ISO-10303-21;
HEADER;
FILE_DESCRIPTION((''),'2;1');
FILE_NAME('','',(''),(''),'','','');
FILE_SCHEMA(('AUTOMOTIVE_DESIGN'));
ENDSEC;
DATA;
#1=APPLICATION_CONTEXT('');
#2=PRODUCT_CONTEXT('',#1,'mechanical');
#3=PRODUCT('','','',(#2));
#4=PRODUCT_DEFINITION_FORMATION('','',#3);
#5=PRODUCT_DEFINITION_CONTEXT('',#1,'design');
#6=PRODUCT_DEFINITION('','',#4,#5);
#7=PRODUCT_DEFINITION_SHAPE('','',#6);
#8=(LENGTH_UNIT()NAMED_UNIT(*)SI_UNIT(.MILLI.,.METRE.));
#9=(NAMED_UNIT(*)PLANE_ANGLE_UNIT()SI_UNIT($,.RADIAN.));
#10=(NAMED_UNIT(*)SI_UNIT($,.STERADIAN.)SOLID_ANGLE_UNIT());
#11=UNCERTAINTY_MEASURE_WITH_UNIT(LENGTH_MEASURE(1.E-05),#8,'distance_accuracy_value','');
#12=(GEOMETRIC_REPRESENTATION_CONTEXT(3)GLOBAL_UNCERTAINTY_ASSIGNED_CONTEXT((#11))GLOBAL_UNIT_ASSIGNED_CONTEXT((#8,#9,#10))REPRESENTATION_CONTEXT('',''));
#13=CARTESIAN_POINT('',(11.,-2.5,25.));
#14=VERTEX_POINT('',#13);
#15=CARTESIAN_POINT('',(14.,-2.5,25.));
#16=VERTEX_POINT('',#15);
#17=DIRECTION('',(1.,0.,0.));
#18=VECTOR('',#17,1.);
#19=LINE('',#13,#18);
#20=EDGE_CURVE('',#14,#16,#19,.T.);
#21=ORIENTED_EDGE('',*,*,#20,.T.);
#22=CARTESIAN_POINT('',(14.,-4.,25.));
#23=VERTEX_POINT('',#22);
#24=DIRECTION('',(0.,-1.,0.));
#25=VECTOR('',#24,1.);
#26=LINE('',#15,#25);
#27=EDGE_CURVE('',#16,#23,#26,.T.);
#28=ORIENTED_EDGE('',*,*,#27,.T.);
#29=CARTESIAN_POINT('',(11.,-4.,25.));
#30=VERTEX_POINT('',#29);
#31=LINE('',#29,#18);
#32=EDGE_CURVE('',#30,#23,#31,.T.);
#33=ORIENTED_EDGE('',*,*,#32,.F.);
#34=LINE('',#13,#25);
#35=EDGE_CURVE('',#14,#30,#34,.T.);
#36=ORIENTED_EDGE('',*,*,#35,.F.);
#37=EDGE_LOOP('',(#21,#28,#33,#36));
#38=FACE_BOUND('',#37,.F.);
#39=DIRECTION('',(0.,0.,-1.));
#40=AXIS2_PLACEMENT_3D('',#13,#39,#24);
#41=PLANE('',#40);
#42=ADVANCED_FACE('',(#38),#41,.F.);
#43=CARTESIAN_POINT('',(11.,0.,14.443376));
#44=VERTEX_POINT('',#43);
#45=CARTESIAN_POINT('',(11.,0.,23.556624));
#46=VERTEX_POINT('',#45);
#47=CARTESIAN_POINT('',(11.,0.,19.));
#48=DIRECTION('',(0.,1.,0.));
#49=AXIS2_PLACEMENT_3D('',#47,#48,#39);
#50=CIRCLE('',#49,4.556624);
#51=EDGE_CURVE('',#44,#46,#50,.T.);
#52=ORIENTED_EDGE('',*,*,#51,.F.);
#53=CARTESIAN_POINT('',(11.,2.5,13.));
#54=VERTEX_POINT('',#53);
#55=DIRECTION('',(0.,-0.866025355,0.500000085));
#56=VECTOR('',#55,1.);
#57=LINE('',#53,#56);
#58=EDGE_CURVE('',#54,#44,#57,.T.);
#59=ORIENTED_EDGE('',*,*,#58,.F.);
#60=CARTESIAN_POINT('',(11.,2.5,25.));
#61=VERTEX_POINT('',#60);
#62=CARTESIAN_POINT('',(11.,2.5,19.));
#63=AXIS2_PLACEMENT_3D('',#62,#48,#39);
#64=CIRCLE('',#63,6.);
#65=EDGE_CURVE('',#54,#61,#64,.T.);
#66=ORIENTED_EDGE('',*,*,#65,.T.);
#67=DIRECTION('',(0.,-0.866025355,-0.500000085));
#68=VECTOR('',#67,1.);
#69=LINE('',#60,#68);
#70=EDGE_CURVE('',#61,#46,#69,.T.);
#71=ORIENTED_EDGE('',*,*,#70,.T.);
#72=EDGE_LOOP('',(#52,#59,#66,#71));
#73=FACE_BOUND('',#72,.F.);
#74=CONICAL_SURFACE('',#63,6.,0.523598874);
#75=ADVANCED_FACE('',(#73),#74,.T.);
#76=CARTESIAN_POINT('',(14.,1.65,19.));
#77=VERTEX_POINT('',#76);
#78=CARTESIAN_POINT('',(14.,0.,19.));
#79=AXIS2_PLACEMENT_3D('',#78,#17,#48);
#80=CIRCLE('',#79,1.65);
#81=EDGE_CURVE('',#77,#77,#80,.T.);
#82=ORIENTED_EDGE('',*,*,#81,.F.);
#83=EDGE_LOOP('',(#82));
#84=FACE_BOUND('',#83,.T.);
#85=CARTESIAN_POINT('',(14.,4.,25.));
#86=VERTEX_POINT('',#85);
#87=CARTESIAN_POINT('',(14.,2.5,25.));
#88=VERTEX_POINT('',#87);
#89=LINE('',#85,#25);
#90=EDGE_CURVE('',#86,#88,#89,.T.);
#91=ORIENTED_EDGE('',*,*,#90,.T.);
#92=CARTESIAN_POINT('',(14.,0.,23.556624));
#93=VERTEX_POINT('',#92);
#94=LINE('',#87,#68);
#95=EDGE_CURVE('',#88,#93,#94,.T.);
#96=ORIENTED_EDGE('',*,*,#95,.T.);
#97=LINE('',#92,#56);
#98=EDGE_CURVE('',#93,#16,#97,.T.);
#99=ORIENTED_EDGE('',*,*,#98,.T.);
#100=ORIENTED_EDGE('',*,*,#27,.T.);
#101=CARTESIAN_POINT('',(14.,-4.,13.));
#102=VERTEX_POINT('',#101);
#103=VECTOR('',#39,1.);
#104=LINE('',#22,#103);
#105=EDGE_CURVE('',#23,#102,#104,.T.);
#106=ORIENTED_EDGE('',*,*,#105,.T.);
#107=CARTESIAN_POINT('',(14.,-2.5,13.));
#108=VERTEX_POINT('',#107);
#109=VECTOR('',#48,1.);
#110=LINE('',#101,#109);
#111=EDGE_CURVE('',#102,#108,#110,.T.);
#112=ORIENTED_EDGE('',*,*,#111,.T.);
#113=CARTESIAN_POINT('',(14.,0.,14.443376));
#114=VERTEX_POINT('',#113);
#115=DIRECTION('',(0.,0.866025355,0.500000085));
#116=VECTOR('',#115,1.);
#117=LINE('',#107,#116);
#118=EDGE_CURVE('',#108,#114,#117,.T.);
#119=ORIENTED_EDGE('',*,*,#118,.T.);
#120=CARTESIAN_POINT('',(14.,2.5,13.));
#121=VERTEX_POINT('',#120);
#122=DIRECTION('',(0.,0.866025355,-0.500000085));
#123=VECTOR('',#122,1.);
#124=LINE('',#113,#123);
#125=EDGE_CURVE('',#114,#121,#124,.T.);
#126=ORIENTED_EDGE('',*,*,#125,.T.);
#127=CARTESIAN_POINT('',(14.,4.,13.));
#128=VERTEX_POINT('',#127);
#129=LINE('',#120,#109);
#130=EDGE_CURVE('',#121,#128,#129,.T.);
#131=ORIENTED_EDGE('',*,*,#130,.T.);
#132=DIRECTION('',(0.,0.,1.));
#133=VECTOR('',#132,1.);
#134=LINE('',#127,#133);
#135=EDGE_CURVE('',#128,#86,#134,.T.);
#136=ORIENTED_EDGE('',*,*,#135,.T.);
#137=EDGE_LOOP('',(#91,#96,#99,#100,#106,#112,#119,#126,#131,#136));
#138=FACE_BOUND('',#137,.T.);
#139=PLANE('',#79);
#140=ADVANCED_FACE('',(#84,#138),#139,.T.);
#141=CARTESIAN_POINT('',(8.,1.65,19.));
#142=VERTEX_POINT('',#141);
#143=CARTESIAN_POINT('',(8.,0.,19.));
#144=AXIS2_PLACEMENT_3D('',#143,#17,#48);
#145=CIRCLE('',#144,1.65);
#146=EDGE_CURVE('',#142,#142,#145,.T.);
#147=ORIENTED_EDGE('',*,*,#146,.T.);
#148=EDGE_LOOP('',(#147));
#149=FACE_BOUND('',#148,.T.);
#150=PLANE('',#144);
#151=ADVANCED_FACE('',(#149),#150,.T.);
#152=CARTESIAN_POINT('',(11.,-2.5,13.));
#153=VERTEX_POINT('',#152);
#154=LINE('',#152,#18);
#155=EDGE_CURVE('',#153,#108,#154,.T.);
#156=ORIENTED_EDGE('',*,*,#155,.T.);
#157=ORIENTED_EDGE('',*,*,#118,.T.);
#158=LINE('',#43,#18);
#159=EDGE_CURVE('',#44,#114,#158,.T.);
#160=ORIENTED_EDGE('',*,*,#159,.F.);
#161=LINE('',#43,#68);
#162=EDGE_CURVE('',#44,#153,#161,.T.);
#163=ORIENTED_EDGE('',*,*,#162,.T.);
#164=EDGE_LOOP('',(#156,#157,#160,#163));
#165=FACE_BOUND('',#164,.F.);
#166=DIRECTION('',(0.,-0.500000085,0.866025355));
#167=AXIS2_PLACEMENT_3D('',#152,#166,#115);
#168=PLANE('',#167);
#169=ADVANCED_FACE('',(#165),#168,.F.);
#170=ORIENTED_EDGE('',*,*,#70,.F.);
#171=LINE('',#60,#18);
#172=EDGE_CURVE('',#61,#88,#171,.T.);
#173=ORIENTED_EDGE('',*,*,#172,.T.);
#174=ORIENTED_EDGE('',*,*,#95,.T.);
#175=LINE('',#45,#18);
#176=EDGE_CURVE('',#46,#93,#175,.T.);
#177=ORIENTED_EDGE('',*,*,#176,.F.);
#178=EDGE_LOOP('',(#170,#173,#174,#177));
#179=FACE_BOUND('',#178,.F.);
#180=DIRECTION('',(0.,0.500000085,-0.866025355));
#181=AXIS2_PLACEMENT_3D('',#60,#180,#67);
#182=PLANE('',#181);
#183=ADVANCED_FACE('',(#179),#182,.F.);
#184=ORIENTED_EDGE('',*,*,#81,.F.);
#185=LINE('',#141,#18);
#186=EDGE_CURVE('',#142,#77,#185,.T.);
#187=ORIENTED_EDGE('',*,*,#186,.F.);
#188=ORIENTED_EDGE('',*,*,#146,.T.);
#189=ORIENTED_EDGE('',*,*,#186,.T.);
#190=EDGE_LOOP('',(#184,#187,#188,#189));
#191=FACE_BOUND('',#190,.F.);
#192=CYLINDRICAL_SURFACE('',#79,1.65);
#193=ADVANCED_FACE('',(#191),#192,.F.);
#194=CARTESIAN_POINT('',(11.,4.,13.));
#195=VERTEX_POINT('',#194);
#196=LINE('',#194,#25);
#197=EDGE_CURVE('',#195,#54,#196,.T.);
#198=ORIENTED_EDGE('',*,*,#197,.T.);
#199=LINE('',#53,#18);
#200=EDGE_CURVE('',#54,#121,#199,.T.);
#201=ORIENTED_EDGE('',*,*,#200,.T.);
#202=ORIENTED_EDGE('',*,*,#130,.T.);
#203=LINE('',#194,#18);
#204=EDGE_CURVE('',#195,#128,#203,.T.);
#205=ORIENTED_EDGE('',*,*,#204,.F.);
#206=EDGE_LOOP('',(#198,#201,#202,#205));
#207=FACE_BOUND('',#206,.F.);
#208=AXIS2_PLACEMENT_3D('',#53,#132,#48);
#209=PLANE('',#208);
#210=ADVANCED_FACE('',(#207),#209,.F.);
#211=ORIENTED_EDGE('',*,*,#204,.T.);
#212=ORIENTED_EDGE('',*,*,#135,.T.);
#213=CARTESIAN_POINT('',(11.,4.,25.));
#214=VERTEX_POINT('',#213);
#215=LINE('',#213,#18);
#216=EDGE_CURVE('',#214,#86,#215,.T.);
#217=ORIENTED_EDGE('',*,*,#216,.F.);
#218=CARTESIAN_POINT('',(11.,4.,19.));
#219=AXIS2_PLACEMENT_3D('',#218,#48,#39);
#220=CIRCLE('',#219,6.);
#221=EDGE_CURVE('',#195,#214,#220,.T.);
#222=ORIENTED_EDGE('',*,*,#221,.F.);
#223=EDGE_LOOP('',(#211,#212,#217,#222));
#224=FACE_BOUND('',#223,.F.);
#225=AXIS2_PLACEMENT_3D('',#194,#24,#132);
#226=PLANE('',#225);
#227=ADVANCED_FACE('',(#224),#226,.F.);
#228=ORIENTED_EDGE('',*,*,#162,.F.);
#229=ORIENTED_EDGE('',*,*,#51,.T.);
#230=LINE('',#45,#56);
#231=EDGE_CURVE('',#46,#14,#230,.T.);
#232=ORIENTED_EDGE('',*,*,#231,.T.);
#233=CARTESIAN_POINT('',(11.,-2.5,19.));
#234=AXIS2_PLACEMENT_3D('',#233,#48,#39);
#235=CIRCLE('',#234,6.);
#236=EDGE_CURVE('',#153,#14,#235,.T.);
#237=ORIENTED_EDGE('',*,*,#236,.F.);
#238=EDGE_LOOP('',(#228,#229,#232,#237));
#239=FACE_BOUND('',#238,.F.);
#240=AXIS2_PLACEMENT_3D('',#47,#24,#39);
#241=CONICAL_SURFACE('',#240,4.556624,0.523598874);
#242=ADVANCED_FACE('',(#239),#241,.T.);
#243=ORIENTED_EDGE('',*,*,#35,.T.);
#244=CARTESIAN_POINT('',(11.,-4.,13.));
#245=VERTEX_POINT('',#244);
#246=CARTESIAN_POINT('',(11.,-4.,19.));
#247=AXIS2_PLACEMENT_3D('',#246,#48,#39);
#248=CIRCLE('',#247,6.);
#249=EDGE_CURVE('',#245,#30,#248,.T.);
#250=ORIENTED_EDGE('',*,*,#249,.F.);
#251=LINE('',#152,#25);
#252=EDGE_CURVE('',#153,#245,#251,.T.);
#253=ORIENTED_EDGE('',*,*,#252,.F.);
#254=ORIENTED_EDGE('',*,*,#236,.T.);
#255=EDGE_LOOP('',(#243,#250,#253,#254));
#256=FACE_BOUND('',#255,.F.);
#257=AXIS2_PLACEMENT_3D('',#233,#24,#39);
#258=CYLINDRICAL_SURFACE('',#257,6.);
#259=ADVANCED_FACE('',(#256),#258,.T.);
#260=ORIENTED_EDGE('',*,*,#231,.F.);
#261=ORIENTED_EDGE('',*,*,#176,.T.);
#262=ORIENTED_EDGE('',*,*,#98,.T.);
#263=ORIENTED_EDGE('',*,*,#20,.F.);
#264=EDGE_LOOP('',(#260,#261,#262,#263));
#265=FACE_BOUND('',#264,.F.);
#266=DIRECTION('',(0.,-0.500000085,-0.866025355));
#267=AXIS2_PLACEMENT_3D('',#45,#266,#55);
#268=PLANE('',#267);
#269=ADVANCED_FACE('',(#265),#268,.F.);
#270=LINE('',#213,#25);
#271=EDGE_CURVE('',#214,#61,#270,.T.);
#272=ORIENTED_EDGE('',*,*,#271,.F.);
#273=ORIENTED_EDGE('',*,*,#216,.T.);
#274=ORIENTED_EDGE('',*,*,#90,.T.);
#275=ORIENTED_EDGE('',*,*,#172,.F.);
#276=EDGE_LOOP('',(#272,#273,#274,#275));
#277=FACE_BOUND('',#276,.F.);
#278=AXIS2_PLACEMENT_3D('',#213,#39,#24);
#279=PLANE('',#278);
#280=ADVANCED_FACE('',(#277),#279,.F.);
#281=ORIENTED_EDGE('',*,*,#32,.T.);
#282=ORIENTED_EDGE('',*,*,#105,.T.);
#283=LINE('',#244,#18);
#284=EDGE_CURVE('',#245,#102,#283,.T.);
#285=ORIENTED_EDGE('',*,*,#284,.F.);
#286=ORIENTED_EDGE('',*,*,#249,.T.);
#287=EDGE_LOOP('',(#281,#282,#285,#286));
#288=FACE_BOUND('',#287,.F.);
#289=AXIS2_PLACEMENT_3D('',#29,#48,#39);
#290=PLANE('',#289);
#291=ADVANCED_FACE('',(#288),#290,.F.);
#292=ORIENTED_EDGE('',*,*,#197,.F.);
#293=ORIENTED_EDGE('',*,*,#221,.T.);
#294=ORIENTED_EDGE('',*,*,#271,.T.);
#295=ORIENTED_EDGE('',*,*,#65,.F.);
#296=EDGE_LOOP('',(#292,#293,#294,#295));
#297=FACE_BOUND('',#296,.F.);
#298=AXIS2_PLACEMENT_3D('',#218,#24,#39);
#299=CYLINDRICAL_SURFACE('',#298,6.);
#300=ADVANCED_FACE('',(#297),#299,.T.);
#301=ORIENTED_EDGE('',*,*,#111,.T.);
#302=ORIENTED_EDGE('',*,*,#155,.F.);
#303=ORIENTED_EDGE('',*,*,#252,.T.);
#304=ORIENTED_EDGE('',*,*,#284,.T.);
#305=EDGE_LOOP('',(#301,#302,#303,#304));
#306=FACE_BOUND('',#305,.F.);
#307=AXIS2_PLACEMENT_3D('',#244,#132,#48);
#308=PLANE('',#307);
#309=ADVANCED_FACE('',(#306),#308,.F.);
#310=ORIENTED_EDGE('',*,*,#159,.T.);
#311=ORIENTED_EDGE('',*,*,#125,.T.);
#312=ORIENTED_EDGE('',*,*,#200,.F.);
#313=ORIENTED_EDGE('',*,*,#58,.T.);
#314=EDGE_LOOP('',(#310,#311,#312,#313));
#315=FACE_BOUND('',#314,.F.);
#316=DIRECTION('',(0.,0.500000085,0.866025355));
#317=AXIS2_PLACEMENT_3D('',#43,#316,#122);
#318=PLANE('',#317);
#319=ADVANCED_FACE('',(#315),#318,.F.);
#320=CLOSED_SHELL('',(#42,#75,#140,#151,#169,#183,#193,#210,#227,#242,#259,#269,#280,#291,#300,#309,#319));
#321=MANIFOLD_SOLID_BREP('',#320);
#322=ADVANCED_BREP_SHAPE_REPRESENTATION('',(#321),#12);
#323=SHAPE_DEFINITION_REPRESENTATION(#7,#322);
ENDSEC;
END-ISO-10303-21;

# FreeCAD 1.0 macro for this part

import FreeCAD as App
import Part
import Sketcher

V = App.Vector
Q = App.Units.Quantity

doc = App.newDocument("Part")
body = doc.addObject("PartDesign::Body", "Body")

# Sketch on YZ plane
sketch1 = body.newObject("Sketcher::SketchObject", "Sketch")
sketch1.AttachmentSupport = (doc.getObject("YZ_Plane"), [""])
sketch1.MapMode = "FlatFace"
sketch1.addGeometry([
    Part.LineSegment(V(-4, 0, 0), V(4, 0, 0)),  # 0
    Part.LineSegment(V(4, 0, 0), V(4, 6, 0)),  # 1
    Part.LineSegment(V(4, 6, 0), V(2.5, 6, 0)),  # 2
    Part.LineSegment(V(2.5, 6, 0), V(0, 4.6, 0)),  # 3
    Part.LineSegment(V(0, 4.6, 0), V(-2.5, 6, 0)),  # 4
    Part.LineSegment(V(-2.5, 6, 0), V(-4, 6, 0)),  # 5
    Part.LineSegment(V(-4, 6, 0), V(-4, 0, 0)),  # 6
], False)
sketch1.addConstraint([
    Sketcher.Constraint("Coincident", 0, 2, 1, 1),
    Sketcher.Constraint("Coincident", 1, 2, 2, 1),
    Sketcher.Constraint("Coincident", 2, 2, 3, 1),
    Sketcher.Constraint("Coincident", 3, 2, 4, 1),
    Sketcher.Constraint("Coincident", 4, 2, 5, 1),
    Sketcher.Constraint("Coincident", 5, 2, 6, 1),
    Sketcher.Constraint("Coincident", 6, 2, 0, 1),
    Sketcher.Constraint("Horizontal", 0),
    Sketcher.Constraint("Vertical", 1),
    Sketcher.Constraint("Horizontal", 2),
    Sketcher.Constraint("Horizontal", 5),
    Sketcher.Constraint("Vertical", 6),
    Sketcher.Constraint("Symmetric", 0, 2, 6, 2, -1, 1),
    Sketcher.Constraint("Symmetric", 2, 2, 4, 2, -2),
    Sketcher.Constraint("PointOnObject", 3, 2, -2),
    Sketcher.Constraint("DistanceX", 0, 1, 0, 2, Q("8 mm")),
    Sketcher.Constraint("DistanceY", 1, 1, 1, 2, Q("6 mm")),
    Sketcher.Constraint("Angle", 3, Q("-149.999994 deg")),
    Sketcher.Constraint("DistanceX", 2, 2, 2, 1, Q("1.5 mm")),
])
revolution = body.newObject("PartDesign::Revolution", "Revolution")
revolution.Profile = sketch1
revolution.ReferenceAxis = (sketch1, ["H_Axis"])
revolution.Angle = 180

# Sketch on YZ plane
sketch2 = body.newObject("Sketcher::SketchObject", "Sketch001")
sketch2.AttachmentSupport = (doc.getObject("YZ_Plane"), [""])
sketch2.MapMode = "FlatFace"
sketch2.AttachmentOffset = App.Placement(V(0, 0, -5), App.Rotation())
sketch2.addGeometry(Part.Circle(V(0, 0, 0), V(0, 0, 1), 1.6), False)
sketch2.addConstraint([
    Sketcher.Constraint("Coincident", 0, 3, -1, 1),
    Sketcher.Constraint("Diameter", 0, Q("3.3 mm")),
])
pocket1 = body.newObject("PartDesign::Pocket", "Pocket")
pocket1.Profile = sketch2
pocket1.Length = 7
pocket1.Reversed = True

# Sketch on YZ plane
sketch3 = body.newObject("Sketcher::SketchObject", "Sketch002")
sketch3.AttachmentSupport = (doc.getObject("YZ_Plane"), [""])
sketch3.MapMode = "FlatFace"
sketch3.addGeometry([
    Part.LineSegment(V(4, 6, 0), V(4, -6, 0)),  # 0
    Part.LineSegment(V(4, -6, 0), V(2.5, -6, 0)),  # 1
    Part.LineSegment(V(2.5, -6, 0), V(0, -4.6, 0)),  # 2
    Part.LineSegment(V(0, -4.6, 0), V(-2.5, -6, 0)),  # 3
    Part.LineSegment(V(-2.5, -6, 0), V(-4, -6, 0)),  # 4
    Part.LineSegment(V(-4, -6, 0), V(-4, 6, 0)),  # 5
    Part.LineSegment(V(-4, 6, 0), V(-2.5, 6, 0)),  # 6
    Part.LineSegment(V(-2.5, 6, 0), V(0, 4.6, 0)),  # 7
    Part.LineSegment(V(0, 4.6, 0), V(2.5, 6, 0)),  # 8
    Part.LineSegment(V(2.5, 6, 0), V(4, 6, 0)),  # 9
], False)
sketch3.addConstraint([
    Sketcher.Constraint("Coincident", 0, 2, 1, 1),
    Sketcher.Constraint("Coincident", 1, 2, 2, 1),
    Sketcher.Constraint("Coincident", 2, 2, 3, 1),
    Sketcher.Constraint("Coincident", 3, 2, 4, 1),
    Sketcher.Constraint("Coincident", 4, 2, 5, 1),
    Sketcher.Constraint("Coincident", 5, 2, 6, 1),
    Sketcher.Constraint("Coincident", 6, 2, 7, 1),
    Sketcher.Constraint("Coincident", 7, 2, 8, 1),
    Sketcher.Constraint("Coincident", 8, 2, 9, 1),
    Sketcher.Constraint("Coincident", 9, 2, 0, 1),
    Sketcher.Constraint("Vertical", 0),
    Sketcher.Constraint("Horizontal", 1),
    Sketcher.Constraint("Horizontal", 4),
    Sketcher.Constraint("Vertical", 5),
    Sketcher.Constraint("Horizontal", 6),
    Sketcher.Constraint("Horizontal", 9),
    Sketcher.Constraint("Symmetric", 0, 2, 5, 2, -1, 1),
    Sketcher.Constraint("Symmetric", 2, 2, 7, 2, -1, 1),
    Sketcher.Constraint("Symmetric", 3, 2, 8, 2, -1, 1),
    Sketcher.Constraint("Symmetric", 1, 2, 3, 2, -2),
    Sketcher.Constraint("PointOnObject", 2, 2, -2),
    Sketcher.Constraint("Parallel", 2, 7),
    Sketcher.Constraint("DistanceY", 0, 2, 0, 1, Q("12 mm")),
    Sketcher.Constraint("Angle", 2, Q("149.999994 deg")),
    Sketcher.Constraint("DistanceX", 1, 2, 1, 1, Q("1.5 mm")),
    Sketcher.Constraint("DistanceX", -1, 1, 0, 2, Q("4 mm")),
])
pad1 = body.newObject("PartDesign::Pad", "Pad")
pad1.Profile = sketch3
pad1.Length = 3
pad1.Reversed = True

# Sketch on YZ plane
sketch4 = body.newObject("Sketcher::SketchObject", "Sketch003")
sketch4.AttachmentSupport = (doc.getObject("YZ_Plane"), [""])
sketch4.MapMode = "FlatFace"
sketch4.AttachmentOffset = App.Placement(V(0, 0, -3), App.Rotation())
sketch4.addGeometry(Part.Circle(V(0, 0, 0), V(0, 0, 1), 1.6), False)
sketch4.addConstraint([
    Sketcher.Constraint("Coincident", 0, 3, -1, 1),
    Sketcher.Constraint("Diameter", 0, Q("3.3 mm")),
])
pocket2 = body.newObject("PartDesign::Pocket", "Pocket001")
pocket2.Profile = sketch4
pocket2.Length = 6
pocket2.Reversed = True
body2 = doc.addObject("PartDesign::Body", "Body001")
doc.recompute()

body.Placement = App.Placement(V(11, 0, 19), App.Rotation(V(0, 1, 0), 180))
boolean = body2.newObject("PartDesign::Boolean", "Boolean")
boolean.Type = "Fuse"
boolean.addObjects([body])

doc.recompute()
